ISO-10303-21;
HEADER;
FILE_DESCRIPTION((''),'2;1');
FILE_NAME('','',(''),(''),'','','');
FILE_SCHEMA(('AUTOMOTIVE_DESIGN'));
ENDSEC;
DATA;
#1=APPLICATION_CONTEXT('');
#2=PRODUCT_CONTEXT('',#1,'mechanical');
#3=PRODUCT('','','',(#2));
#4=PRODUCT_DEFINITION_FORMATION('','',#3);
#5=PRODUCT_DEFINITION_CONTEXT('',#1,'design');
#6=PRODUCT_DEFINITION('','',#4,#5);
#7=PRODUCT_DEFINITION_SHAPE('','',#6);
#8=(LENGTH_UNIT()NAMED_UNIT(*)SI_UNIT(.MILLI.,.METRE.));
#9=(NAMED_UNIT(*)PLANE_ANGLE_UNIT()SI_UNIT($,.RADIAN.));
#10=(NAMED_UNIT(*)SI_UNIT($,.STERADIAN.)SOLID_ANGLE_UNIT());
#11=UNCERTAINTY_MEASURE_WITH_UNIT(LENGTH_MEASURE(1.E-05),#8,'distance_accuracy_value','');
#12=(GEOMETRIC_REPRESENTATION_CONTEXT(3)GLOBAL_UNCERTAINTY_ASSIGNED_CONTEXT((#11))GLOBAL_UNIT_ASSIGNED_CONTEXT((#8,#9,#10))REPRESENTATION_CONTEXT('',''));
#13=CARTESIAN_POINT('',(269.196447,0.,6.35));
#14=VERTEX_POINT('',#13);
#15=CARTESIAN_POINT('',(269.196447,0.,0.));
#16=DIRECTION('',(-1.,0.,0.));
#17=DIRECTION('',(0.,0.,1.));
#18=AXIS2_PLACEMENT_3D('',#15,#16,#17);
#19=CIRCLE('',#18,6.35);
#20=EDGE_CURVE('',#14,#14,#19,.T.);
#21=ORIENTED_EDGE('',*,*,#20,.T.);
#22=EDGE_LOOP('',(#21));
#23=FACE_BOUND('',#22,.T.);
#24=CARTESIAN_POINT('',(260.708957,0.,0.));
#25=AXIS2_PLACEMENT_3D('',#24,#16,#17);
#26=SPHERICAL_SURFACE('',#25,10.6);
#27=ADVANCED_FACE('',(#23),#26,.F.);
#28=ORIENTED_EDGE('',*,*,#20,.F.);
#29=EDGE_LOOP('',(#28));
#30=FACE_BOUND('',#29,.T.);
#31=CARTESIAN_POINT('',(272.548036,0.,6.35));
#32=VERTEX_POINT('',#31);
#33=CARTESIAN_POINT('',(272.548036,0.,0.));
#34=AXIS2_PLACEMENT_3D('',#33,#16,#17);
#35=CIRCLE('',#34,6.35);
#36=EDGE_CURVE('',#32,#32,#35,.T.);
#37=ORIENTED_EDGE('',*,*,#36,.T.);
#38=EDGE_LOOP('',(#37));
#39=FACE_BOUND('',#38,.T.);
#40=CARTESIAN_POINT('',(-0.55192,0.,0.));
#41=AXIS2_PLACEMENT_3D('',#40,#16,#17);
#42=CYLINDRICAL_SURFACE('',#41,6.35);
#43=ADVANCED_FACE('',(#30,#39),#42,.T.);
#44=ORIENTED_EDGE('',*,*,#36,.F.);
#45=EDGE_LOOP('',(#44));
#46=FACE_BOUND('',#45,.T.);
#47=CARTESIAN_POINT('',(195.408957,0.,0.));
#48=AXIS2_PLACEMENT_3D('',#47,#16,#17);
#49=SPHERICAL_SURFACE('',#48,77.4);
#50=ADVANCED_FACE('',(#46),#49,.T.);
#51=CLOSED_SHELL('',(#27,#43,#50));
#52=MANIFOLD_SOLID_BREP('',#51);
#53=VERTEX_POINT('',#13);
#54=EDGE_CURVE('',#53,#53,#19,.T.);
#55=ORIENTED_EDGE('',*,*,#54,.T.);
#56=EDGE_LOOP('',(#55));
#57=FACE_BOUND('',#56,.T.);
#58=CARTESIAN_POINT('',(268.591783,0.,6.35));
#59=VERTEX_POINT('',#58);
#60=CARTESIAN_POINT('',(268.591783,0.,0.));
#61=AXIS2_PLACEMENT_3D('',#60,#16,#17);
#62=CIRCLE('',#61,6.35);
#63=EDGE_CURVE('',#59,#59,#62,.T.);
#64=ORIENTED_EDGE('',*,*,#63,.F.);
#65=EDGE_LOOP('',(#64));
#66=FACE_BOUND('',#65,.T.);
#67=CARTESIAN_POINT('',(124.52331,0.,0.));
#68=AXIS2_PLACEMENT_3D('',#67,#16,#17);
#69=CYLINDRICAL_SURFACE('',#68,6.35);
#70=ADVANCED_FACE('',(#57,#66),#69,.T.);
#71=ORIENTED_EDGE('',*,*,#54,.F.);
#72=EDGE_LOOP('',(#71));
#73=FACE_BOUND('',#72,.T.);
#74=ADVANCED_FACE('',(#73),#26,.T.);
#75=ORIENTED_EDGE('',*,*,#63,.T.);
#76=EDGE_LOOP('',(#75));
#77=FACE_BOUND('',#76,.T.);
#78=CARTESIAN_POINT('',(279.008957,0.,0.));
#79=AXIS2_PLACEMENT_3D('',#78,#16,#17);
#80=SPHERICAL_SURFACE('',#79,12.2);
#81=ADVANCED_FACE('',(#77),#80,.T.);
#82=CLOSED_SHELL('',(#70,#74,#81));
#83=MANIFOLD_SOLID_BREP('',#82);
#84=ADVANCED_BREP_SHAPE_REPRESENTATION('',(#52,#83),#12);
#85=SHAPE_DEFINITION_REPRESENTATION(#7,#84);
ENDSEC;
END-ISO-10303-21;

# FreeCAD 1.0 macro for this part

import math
import FreeCAD as App
import Part
import Sketcher
from FreeCAD import Vector
Q = App.Units.Quantity

doc = App.newDocument("Part")
body = doc.addObject("PartDesign::Body", "Body")

# Sketch on XZ plane
sketch1 = doc.addObject("Sketcher::SketchObject", "Sketch")
body.addObject(sketch1)
sketch1.AttachmentSupport = (doc.XZ_Plane, [""])
sketch1.MapMode = "FlatFace"
sketch1.addGeometry(Part.ArcOfCircle(Part.Circle(Vector(279.008957, 0, 0), Vector(0, 0, 1), 12.2), math.radians(180), math.radians(211.365246)), False)
sketch1.addGeometry(Part.LineSegment(Vector(266.808957, 0, 0), Vector(271.308957, 0, 0)), False)
sketch1.addGeometry(Part.ArcOfCircle(Part.Circle(Vector(260.708957, 0, 0), Vector(0, 0, 1), 10.6), math.radians(-36.802362), math.radians(0)), False)
sketch1.addGeometry(Part.LineSegment(Vector(269.196447, -6.35, 0), Vector(268.591783, -6.35, 0)), False)
sketch1.addConstraint(Sketcher.Constraint("Coincident", 0, 1, 1, 1))
sketch1.addConstraint(Sketcher.Constraint("Coincident", 1, 2, 2, 2))
sketch1.addConstraint(Sketcher.Constraint("Coincident", 2, 1, 3, 1))
sketch1.addConstraint(Sketcher.Constraint("Coincident", 3, 2, 0, 2))
sketch1.addConstraint(Sketcher.Constraint("Horizontal", 1))
sketch1.addConstraint(Sketcher.Constraint("Horizontal", 3))
sketch1.addConstraint(Sketcher.Constraint("PointOnObject", 0, 3, -1))
sketch1.addConstraint(Sketcher.Constraint("PointOnObject", 2, 3, -1))
sketch1.addConstraint(Sketcher.Constraint("PointOnObject", 0, 1, -1))
sketch1.addConstraint(Sketcher.Constraint("Radius", 0, Q("12.2 mm")))
sketch1.addConstraint(Sketcher.Constraint("Radius", 2, Q("10.6 mm")))
sketch1.addConstraint(Sketcher.Constraint("DistanceX", 1, 1, 1, 2, Q("4.5 mm")))
sketch1.addConstraint(Sketcher.Constraint("DistanceY", 2, 1, -1, 1, Q("6.35 mm")))
sketch1.addConstraint(Sketcher.Constraint("DistanceX", -1, 1, 0, 3, Q("279.008957 mm")))
revolution = doc.addObject("PartDesign::Revolution", "Revolution")
body.addObject(revolution)
revolution.Profile = sketch1
revolution.ReferenceAxis = (sketch1, ["H_Axis"])
revolution.Angle = 360
body2 = doc.addObject("PartDesign::Body", "Body001")

# Sketch on XZ plane
sketch2 = doc.addObject("Sketcher::SketchObject", "Sketch001")
body2.addObject(sketch2)
sketch2.AttachmentSupport = (doc.getObject("XZ_Plane001"), [""])
sketch2.MapMode = "FlatFace"
sketch2.addGeometry(Part.LineSegment(Vector(272.548036, -6.35, 0), Vector(269.196447, -6.35, 0)), False)
sketch2.addGeometry(Part.ArcOfCircle(Part.Circle(Vector(260.708957, 0, 0), Vector(0, 0, 1), 10.6), math.radians(-36.802362), math.radians(0)), False)
sketch2.addGeometry(Part.LineSegment(Vector(271.308957, 0, 0), Vector(272.808957, 0, 0)), False)
sketch2.addGeometry(Part.ArcOfCircle(Part.Circle(Vector(195.408957, 0, 0), Vector(0, 0, 1), 77.399999), math.radians(-4.705912), math.radians(0)), False)
sketch2.addConstraint(Sketcher.Constraint("Coincident", 0, 2, 1, 1))
sketch2.addConstraint(Sketcher.Constraint("Coincident", 1, 2, 2, 1))
sketch2.addConstraint(Sketcher.Constraint("Coincident", 2, 2, 3, 2))
sketch2.addConstraint(Sketcher.Constraint("Coincident", 3, 1, 0, 1))
sketch2.addConstraint(Sketcher.Constraint("Horizontal", 0))
sketch2.addConstraint(Sketcher.Constraint("Horizontal", 2))
sketch2.addConstraint(Sketcher.Constraint("PointOnObject", 1, 3, -1))
sketch2.addConstraint(Sketcher.Constraint("PointOnObject", 3, 3, -1))
sketch2.addConstraint(Sketcher.Constraint("PointOnObject", 1, 2, -1))
sketch2.addConstraint(Sketcher.Constraint("Radius", 1, Q("10.6 mm")))
sketch2.addConstraint(Sketcher.Constraint("Radius", 3, Q("77.399999 mm")))
sketch2.addConstraint(Sketcher.Constraint("DistanceX", 2, 1, 2, 2, Q("1.5 mm")))
sketch2.addConstraint(Sketcher.Constraint("DistanceY", 0, 2, -1, 1, Q("6.35 mm")))
sketch2.addConstraint(Sketcher.Constraint("DistanceX", -1, 1, 1, 3, Q("260.708957 mm")))
revolution2 = doc.addObject("PartDesign::Revolution", "Revolution001")
body2.addObject(revolution2)
revolution2.Profile = sketch2
revolution2.ReferenceAxis = (sketch2, ["H_Axis"])
revolution2.Angle = 360

doc.recompute()
